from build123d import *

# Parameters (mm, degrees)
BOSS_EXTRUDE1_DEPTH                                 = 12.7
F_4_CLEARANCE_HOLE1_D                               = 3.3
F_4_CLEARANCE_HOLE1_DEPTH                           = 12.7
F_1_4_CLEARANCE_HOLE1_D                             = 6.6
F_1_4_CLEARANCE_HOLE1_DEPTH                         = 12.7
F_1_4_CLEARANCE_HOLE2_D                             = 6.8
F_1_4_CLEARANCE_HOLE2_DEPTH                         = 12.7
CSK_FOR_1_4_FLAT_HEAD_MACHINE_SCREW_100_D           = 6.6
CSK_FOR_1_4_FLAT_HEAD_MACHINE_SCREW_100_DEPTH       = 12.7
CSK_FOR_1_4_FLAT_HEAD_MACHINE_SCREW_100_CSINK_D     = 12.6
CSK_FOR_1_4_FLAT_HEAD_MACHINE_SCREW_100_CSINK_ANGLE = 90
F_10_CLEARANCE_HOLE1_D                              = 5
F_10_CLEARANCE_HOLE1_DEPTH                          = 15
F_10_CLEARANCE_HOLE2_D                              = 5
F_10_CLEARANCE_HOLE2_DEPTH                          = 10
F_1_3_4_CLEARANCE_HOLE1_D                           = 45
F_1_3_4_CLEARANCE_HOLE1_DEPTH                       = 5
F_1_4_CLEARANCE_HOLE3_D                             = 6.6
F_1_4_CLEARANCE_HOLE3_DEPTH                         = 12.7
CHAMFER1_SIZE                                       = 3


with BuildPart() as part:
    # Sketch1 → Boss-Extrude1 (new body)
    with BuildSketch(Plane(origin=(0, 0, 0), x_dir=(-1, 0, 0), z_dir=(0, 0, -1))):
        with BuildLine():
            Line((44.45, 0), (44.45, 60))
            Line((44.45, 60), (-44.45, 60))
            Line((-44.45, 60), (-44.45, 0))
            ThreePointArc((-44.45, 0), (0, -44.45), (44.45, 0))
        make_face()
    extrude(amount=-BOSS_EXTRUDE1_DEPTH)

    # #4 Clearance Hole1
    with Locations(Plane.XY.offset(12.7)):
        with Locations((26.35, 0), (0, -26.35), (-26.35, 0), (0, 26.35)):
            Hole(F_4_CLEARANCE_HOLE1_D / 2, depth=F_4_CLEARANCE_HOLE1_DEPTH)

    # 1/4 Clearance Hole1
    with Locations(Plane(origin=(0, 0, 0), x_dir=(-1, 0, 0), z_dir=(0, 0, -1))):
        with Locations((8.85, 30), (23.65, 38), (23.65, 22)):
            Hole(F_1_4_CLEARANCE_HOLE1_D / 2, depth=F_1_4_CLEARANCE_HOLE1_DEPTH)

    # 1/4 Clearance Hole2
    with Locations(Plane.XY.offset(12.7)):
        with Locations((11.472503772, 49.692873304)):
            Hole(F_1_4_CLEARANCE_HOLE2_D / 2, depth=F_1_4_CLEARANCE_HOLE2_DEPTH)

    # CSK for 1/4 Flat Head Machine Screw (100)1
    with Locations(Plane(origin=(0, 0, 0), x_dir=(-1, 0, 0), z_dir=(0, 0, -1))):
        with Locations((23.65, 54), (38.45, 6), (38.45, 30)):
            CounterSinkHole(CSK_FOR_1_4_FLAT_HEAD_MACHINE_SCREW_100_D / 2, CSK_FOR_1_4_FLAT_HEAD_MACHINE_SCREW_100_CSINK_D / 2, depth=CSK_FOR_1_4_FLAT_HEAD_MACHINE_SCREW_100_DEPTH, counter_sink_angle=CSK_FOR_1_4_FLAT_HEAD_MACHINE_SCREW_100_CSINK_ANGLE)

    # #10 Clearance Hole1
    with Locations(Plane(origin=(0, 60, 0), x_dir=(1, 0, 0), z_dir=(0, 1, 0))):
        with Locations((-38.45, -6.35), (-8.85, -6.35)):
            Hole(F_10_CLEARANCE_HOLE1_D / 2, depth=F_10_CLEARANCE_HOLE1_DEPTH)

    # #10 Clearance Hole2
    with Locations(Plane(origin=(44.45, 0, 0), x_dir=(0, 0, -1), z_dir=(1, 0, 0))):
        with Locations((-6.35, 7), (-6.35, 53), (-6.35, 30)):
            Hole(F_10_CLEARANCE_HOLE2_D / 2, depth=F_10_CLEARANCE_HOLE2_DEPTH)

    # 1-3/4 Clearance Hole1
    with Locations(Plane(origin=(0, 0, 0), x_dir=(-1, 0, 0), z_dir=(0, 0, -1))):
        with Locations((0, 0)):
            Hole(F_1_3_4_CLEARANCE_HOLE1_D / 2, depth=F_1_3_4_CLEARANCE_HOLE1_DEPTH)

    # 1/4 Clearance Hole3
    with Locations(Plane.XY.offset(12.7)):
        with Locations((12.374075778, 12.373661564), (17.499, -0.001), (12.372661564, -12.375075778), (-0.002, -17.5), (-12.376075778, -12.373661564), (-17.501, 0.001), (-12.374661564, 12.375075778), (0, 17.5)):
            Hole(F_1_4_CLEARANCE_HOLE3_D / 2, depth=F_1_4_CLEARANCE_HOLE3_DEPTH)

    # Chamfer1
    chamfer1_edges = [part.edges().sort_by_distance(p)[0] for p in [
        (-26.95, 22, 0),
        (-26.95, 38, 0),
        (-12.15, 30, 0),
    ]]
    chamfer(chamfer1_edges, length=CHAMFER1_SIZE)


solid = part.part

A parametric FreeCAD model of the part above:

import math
import FreeCAD as App
import Part
import Sketcher
from FreeCAD import Vector
Q = App.Units.Quantity


def edges_at(feature, points):
    """Names of the edges that pass closest to the given points."""
    edges = feature.Shape.Edges
    near = lambda p: min(range(len(edges)), key=lambda i: edges[i].distToShape(Part.Vertex(*p))[0])
    return sorted({f"Edge{near(p) + 1}" for p in points})

doc = App.newDocument("Part")
body = doc.addObject("PartDesign::Body", "Body")

# Sketch on XY plane
sketch1 = body.newObject("Sketcher::SketchObject", "Sketch")
sketch1.AttachmentSupport = (doc.getObject("XY_Plane"), [""])
sketch1.MapMode = "FlatFace"
sketch1.addGeometry(Part.LineSegment(Vector(-44.45, 0, 0), Vector(-44.45, 60, 0)), False)
sketch1.addGeometry(Part.LineSegment(Vector(-44.45, 60, 0), Vector(44.45, 60, 0)), False)
sketch1.addGeometry(Part.LineSegment(Vector(44.45, 60, 0), Vector(44.45, 0, 0)), False)
sketch1.addGeometry(Part.ArcOfCircle(Part.Circle(Vector(0, 0, 0), Vector(0, 0, 1), 44.45), math.radians(180), math.radians(360)), False)
sketch1.addConstraint(Sketcher.Constraint("Coincident", 0, 2, 1, 1))
sketch1.addConstraint(Sketcher.Constraint("Coincident", 1, 2, 2, 1))
sketch1.addConstraint(Sketcher.Constraint("Tangent", 2, 2, 3, 2))
sketch1.addConstraint(Sketcher.Constraint("Tangent", 3, 1, 0, 1))
sketch1.addConstraint(Sketcher.Constraint("Vertical", 0))
sketch1.addConstraint(Sketcher.Constraint("Horizontal", 1))
sketch1.addConstraint(Sketcher.Constraint("Vertical", 2))
sketch1.addConstraint(Sketcher.Constraint("Coincident", 3, 3, -1, 1))
sketch1.addConstraint(Sketcher.Constraint("DistanceY", 0, 1, 0, 2, Q("60 mm")))
sketch1.addConstraint(Sketcher.Constraint("Radius", 3, Q("44.45 mm")))
pad1 = body.newObject("PartDesign::Pad", "Pad")
pad1.Profile = sketch1
pad1.Length = 12.7

# Sketch on XY plane
sketch2 = body.newObject("Sketcher::SketchObject", "Sketch001")
sketch2.AttachmentSupport = (doc.getObject("XY_Plane"), [""])
sketch2.MapMode = "FlatFace"
sketch2.AttachmentOffset = App.Placement(Vector(0, 0, 12.7), App.Rotation())
sketch2.addGeometry(Part.Circle(Vector(26.35, 0, 0), Vector(0, 0, 1), 1.65), False)
sketch2.addGeometry(Part.Circle(Vector(0, -26.35, 0), Vector(0, 0, 1), 1.65), False)
sketch2.addGeometry(Part.Circle(Vector(-26.35, 0, 0), Vector(0, 0, 1), 1.65), False)
sketch2.addGeometry(Part.Circle(Vector(0, 26.35, 0), Vector(0, 0, 1), 1.65), False)
sketch2.addConstraint(Sketcher.Constraint("Equal", 0, 1))
sketch2.addConstraint(Sketcher.Constraint("Equal", 1, 2))
sketch2.addConstraint(Sketcher.Constraint("Equal", 2, 3))
sketch2.addConstraint(Sketcher.Constraint("Symmetric", 0, 3, 2, 3, -1, 1))
sketch2.addConstraint(Sketcher.Constraint("Symmetric", 1, 3, 3, 3, -1, 1))
sketch2.addConstraint(Sketcher.Constraint("PointOnObject", 0, 3, -1))
sketch2.addConstraint(Sketcher.Constraint("PointOnObject", 1, 3, -2))
sketch2.addConstraint(Sketcher.Constraint("Diameter", 0, Q("3.3 mm")))
sketch2.addConstraint(Sketcher.Constraint("DistanceX", 2, 3, 0, 3, Q("52.7 mm")))
sketch2.addConstraint(Sketcher.Constraint("DistanceY", 1, 3, 3, 3, Q("52.7 mm")))
doc.recompute()
hole = body.newObject("PartDesign::Hole", "Hole")
hole.Profile = sketch2
hole.ThreadType = "None"
hole.Diameter = 3.3
hole.DepthType = "Dimension"
hole.Depth = 12.7
hole.DrillPoint = "Flat"

# Sketch on XY plane
sketch3 = body.newObject("Sketcher::SketchObject", "Sketch002")
sketch3.AttachmentSupport = (doc.getObject("XY_Plane"), [""])
sketch3.MapMode = "FlatFace"
sketch3.addGeometry(Part.Circle(Vector(-8.85, 30, 0), Vector(0, 0, 1), 3.3), False)
sketch3.addGeometry(Part.Circle(Vector(-23.65, 38, 0), Vector(0, 0, 1), 3.3), False)
sketch3.addGeometry(Part.Circle(Vector(-23.65, 22, 0), Vector(0, 0, 1), 3.3), False)
sketch3.addConstraint(Sketcher.Constraint("Equal", 0, 1))
sketch3.addConstraint(Sketcher.Constraint("Equal", 1, 2))
sketch3.addConstraint(Sketcher.Constraint("Vertical", 1, 3, 2, 3))
sketch3.addConstraint(Sketcher.Constraint("Diameter", 0, Q("6.6 mm")))
sketch3.addConstraint(Sketcher.Constraint("DistanceY", -1, 1, 0, 3, Q("30 mm")))
sketch3.addConstraint(Sketcher.Constraint("DistanceY", -1, 1, 1, 3, Q("38 mm")))
sketch3.addConstraint(Sketcher.Constraint("DistanceY", -1, 1, 2, 3, Q("22 mm")))
sketch3.addConstraint(Sketcher.Constraint("DistanceX", 1, 3, 0, 3, Q("14.8 mm")))
sketch3.addConstraint(Sketcher.Constraint("DistanceX", 0, 3, -1, 1, Q("8.85 mm")))
doc.recompute()
hole2 = body.newObject("PartDesign::Hole", "Hole001")
hole2.Profile = sketch3
hole2.ThreadType = "None"
hole2.Diameter = 6.6
hole2.DepthType = "Dimension"
hole2.Depth = 12.7
hole2.DrillPoint = "Flat"
hole2.Reversed = True

# Sketch on XY plane
sketch4 = body.newObject("Sketcher::SketchObject", "Sketch003")
sketch4.AttachmentSupport = (doc.getObject("XY_Plane"), [""])
sketch4.MapMode = "FlatFace"
sketch4.AttachmentOffset = App.Placement(Vector(0, 0, 12.7), App.Rotation())
sketch4.addGeometry(Part.Circle(Vector(11.472504, 49.692873, 0), Vector(0, 0, 1), 3.4), False)
sketch4.addConstraint(Sketcher.Constraint("Diameter", 0, Q("6.8 mm")))
sketch4.addConstraint(Sketcher.Constraint("DistanceX", -1, 1, 0, 3, Q("11.472504 mm")))
sketch4.addConstraint(Sketcher.Constraint("DistanceY", -1, 1, 0, 3, Q("49.692873 mm")))
doc.recompute()
hole3 = body.newObject("PartDesign::Hole", "Hole002")
hole3.Profile = sketch4
hole3.ThreadType = "None"
hole3.Diameter = 6.8
hole3.DepthType = "Dimension"
hole3.Depth = 12.7
hole3.DrillPoint = "Flat"

# Sketch on XY plane
sketch5 = body.newObject("Sketcher::SketchObject", "Sketch004")
sketch5.AttachmentSupport = (doc.getObject("XY_Plane"), [""])
sketch5.MapMode = "FlatFace"
sketch5.addGeometry(Part.Circle(Vector(-23.65, 54, 0), Vector(0, 0, 1), 3.3), False)
sketch5.addGeometry(Part.Circle(Vector(-38.45, 6, 0), Vector(0, 0, 1), 3.3), False)
sketch5.addGeometry(Part.Circle(Vector(-38.45, 30, 0), Vector(0, 0, 1), 3.3), False)
sketch5.addConstraint(Sketcher.Constraint("Equal", 0, 1))
sketch5.addConstraint(Sketcher.Constraint("Equal", 1, 2))
sketch5.addConstraint(Sketcher.Constraint("Vertical", 1, 3, 2, 3))
sketch5.addConstraint(Sketcher.Constraint("Diameter", 0, Q("6.6 mm")))
sketch5.addConstraint(Sketcher.Constraint("DistanceY", -1, 1, 0, 3, Q("54 mm")))
sketch5.addConstraint(Sketcher.Constraint("DistanceY", -1, 1, 1, 3, Q("6 mm")))
sketch5.addConstraint(Sketcher.Constraint("DistanceY", -1, 1, 2, 3, Q("30 mm")))
sketch5.addConstraint(Sketcher.Constraint("DistanceX", 1, 3, 0, 3, Q("14.8 mm")))
sketch5.addConstraint(Sketcher.Constraint("DistanceX", 0, 3, -1, 1, Q("23.65 mm")))
doc.recompute()
hole4 = body.newObject("PartDesign::Hole", "Hole003")
hole4.Profile = sketch5
hole4.ThreadType = "None"
hole4.Diameter = 6.6
hole4.DepthType = "Dimension"
hole4.Depth = 12.7
hole4.DrillPoint = "Flat"
hole4.HoleCutType = "Countersink"
hole4.HoleCutDiameter = 12.6
hole4.HoleCutCountersinkAngle = 90
hole4.Reversed = True

# Sketch on XZ plane
sketch6 = body.newObject("Sketcher::SketchObject", "Sketch005")
sketch6.AttachmentSupport = (doc.getObject("XZ_Plane"), [""])
sketch6.MapMode = "FlatFace"
sketch6.AttachmentOffset = App.Placement(Vector(0, 0, -60), App.Rotation())
sketch6.addGeometry(Part.Circle(Vector(-38.45, 6.35, 0), Vector(0, 0, 1), 2.5), False)
sketch6.addGeometry(Part.Circle(Vector(-8.85, 6.35, 0), Vector(0, 0, 1), 2.5), False)
sketch6.addConstraint(Sketcher.Constraint("Equal", 0, 1))
sketch6.addConstraint(Sketcher.Constraint("Horizontal", 0, 3, 1, 3))
sketch6.addConstraint(Sketcher.Constraint("Diameter", 0, Q("5 mm")))
sketch6.addConstraint(Sketcher.Constraint("DistanceX", 0, 3, 1, 3, Q("29.6 mm")))
sketch6.addConstraint(Sketcher.Constraint("DistanceX", 0, 3, -1, 1, Q("38.45 mm")))
sketch6.addConstraint(Sketcher.Constraint("DistanceY", -1, 1, 0, 3, Q("6.35 mm")))
doc.recompute()
hole5 = body.newObject("PartDesign::Hole", "Hole004")
hole5.Profile = sketch6
hole5.ThreadType = "None"
hole5.Diameter = 5
hole5.DepthType = "Dimension"
hole5.Depth = 15
hole5.DrillPoint = "Flat"
hole5.Reversed = True

# Sketch on YZ plane
sketch7 = body.newObject("Sketcher::SketchObject", "Sketch006")
sketch7.AttachmentSupport = (doc.getObject("YZ_Plane"), [""])
sketch7.MapMode = "FlatFace"
sketch7.AttachmentOffset = App.Placement(Vector(0, 0, 44.45), App.Rotation())
sketch7.addGeometry(Part.Circle(Vector(7, 6.35, 0), Vector(0, 0, 1), 2.5), False)
sketch7.addGeometry(Part.Circle(Vector(53, 6.35, 0), Vector(0, 0, 1), 2.5), False)
sketch7.addGeometry(Part.Circle(Vector(30, 6.35, 0), Vector(0, 0, 1), 2.5), False)
sketch7.addConstraint(Sketcher.Constraint("Equal", 0, 1))
sketch7.addConstraint(Sketcher.Constraint("Equal", 1, 2))
sketch7.addConstraint(Sketcher.Constraint("Horizontal", 0, 3, 1, 3))
sketch7.addConstraint(Sketcher.Constraint("Horizontal", 1, 3, 2, 3))
sketch7.addConstraint(Sketcher.Constraint("Diameter", 0, Q("5 mm")))
sketch7.addConstraint(Sketcher.Constraint("DistanceX", -1, 1, 0, 3, Q("7 mm")))
sketch7.addConstraint(Sketcher.Constraint("DistanceX", -1, 1, 1, 3, Q("53 mm")))
sketch7.addConstraint(Sketcher.Constraint("DistanceX", -1, 1, 2, 3, Q("30 mm")))
sketch7.addConstraint(Sketcher.Constraint("DistanceY", -1, 1, 0, 3, Q("6.35 mm")))
doc.recompute()
hole6 = body.newObject("PartDesign::Hole", "Hole005")
hole6.Profile = sketch7
hole6.ThreadType = "None"
hole6.Diameter = 5
hole6.DepthType = "Dimension"
hole6.Depth = 10
hole6.DrillPoint = "Flat"

# Sketch on XY plane
sketch8 = body.newObject("Sketcher::SketchObject", "Sketch007")
sketch8.AttachmentSupport = (doc.getObject("XY_Plane"), [""])
sketch8.MapMode = "FlatFace"
sketch8.addGeometry(Part.Circle(Vector(0, 0, 0), Vector(0, 0, 1), 22.5), False)
sketch8.addConstraint(Sketcher.Constraint("Coincident", 0, 3, -1, 1))
sketch8.addConstraint(Sketcher.Constraint("Diameter", 0, Q("45 mm")))
doc.recompute()
hole7 = body.newObject("PartDesign::Hole", "Hole006")
hole7.Profile = sketch8
hole7.ThreadType = "None"
hole7.Diameter = 45
hole7.DepthType = "Dimension"
hole7.Depth = 5
hole7.DrillPoint = "Flat"
hole7.Reversed = True

# Sketch on XY plane
sketch9 = body.newObject("Sketcher::SketchObject", "Sketch008")
sketch9.AttachmentSupport = (doc.getObject("XY_Plane"), [""])
sketch9.MapMode = "FlatFace"
sketch9.AttachmentOffset = App.Placement(Vector(0, 0, 12.7), App.Rotation())
sketch9.addGeometry(Part.Circle(Vector(12.374076, 12.373662, 0), Vector(0, 0, 1), 3.3), False)
sketch9.addGeometry(Part.Circle(Vector(17.499, -0.001, 0), Vector(0, 0, 1), 3.3), False)
sketch9.addGeometry(Part.Circle(Vector(12.372662, -12.375076, 0), Vector(0, 0, 1), 3.3), False)
sketch9.addGeometry(Part.Circle(Vector(-0.002, -17.5, 0), Vector(0, 0, 1), 3.3), False)
sketch9.addGeometry(Part.Circle(Vector(-12.376076, -12.373662, 0), Vector(0, 0, 1), 3.3), False)
sketch9.addGeometry(Part.Circle(Vector(-17.501, 0.001, 0), Vector(0, 0, 1), 3.3), False)
sketch9.addGeometry(Part.Circle(Vector(-12.374662, 12.375076, 0), Vector(0, 0, 1), 3.3), False)
sketch9.addGeometry(Part.Circle(Vector(0, 17.5, 0), Vector(0, 0, 1), 3.3), False)
sketch9.addConstraint(Sketcher.Constraint("Equal", 0, 1))
sketch9.addConstraint(Sketcher.Constraint("Equal", 1, 2))
sketch9.addConstraint(Sketcher.Constraint("Equal", 2, 3))
sketch9.addConstraint(Sketcher.Constraint("Equal", 3, 4))
sketch9.addConstraint(Sketcher.Constraint("Equal", 4, 5))
sketch9.addConstraint(Sketcher.Constraint("Equal", 5, 6))
sketch9.addConstraint(Sketcher.Constraint("Equal", 6, 7))
sketch9.addConstraint(Sketcher.Constraint("PointOnObject", 7, 3, -2))
sketch9.addConstraint(Sketcher.Constraint("Diameter", 0, Q("6.6 mm")))
sketch9.addConstraint(Sketcher.Constraint("DistanceX", 5, 3, 1, 3, Q("35 mm")))
sketch9.addConstraint(Sketcher.Constraint("DistanceY", 3, 3, -1, 1, Q("17.5 mm")))
sketch9.addConstraint(Sketcher.Constraint("DistanceY", -1, 1, 7, 3, Q("17.5 mm")))
sketch9.addConstraint(Sketcher.Constraint("DistanceX", -1, 1, 1, 3, Q("17.499 mm")))
sketch9.addConstraint(Sketcher.Constraint("DistanceY", 1, 3, -1, 1, Q("0.001 mm")))
sketch9.addConstraint(Sketcher.Constraint("DistanceX", 3, 3, -1, 1, Q("0.002 mm")))
sketch9.addConstraint(Sketcher.Constraint("DistanceY", -1, 1, 5, 3, Q("0.001 mm")))
sketch9.addConstraint(Sketcher.Constraint("DistanceY", -1, 1, 0, 3, Q("12.373662 mm")))
sketch9.addConstraint(Sketcher.Constraint("DistanceX", -1, 1, 2, 3, Q("12.372662 mm")))
sketch9.addConstraint(Sketcher.Constraint("DistanceY", 4, 3, -1, 1, Q("12.373662 mm")))
sketch9.addConstraint(Sketcher.Constraint("DistanceX", 6, 3, -1, 1, Q("12.374662 mm")))
sketch9.addConstraint(Sketcher.Constraint("DistanceX", 4, 3, 0, 3, Q("24.750152 mm")))
sketch9.addConstraint(Sketcher.Constraint("DistanceX", -1, 1, 0, 3, Q("12.374076 mm")))
sketch9.addConstraint(Sketcher.Constraint("DistanceY", 2, 3, -1, 1, Q("12.375076 mm")))
sketch9.addConstraint(Sketcher.Constraint("DistanceY", -1, 1, 6, 3, Q("12.375076 mm")))
doc.recompute()
hole8 = body.newObject("PartDesign::Hole", "Hole007")
hole8.Profile = sketch9
hole8.ThreadType = "None"
hole8.Diameter = 6.6
hole8.DepthType = "Dimension"
hole8.Depth = 12.7
hole8.DrillPoint = "Flat"
doc.recompute()

chamfer = body.newObject("PartDesign::Chamfer", "Chamfer")
chamfer.Base = (hole8, edges_at(hole8, [(-26.95, 22, 0), (-26.95, 38, 0), (-12.15, 30, 0)]))
chamfer.Size = 3

doc.recompute()
